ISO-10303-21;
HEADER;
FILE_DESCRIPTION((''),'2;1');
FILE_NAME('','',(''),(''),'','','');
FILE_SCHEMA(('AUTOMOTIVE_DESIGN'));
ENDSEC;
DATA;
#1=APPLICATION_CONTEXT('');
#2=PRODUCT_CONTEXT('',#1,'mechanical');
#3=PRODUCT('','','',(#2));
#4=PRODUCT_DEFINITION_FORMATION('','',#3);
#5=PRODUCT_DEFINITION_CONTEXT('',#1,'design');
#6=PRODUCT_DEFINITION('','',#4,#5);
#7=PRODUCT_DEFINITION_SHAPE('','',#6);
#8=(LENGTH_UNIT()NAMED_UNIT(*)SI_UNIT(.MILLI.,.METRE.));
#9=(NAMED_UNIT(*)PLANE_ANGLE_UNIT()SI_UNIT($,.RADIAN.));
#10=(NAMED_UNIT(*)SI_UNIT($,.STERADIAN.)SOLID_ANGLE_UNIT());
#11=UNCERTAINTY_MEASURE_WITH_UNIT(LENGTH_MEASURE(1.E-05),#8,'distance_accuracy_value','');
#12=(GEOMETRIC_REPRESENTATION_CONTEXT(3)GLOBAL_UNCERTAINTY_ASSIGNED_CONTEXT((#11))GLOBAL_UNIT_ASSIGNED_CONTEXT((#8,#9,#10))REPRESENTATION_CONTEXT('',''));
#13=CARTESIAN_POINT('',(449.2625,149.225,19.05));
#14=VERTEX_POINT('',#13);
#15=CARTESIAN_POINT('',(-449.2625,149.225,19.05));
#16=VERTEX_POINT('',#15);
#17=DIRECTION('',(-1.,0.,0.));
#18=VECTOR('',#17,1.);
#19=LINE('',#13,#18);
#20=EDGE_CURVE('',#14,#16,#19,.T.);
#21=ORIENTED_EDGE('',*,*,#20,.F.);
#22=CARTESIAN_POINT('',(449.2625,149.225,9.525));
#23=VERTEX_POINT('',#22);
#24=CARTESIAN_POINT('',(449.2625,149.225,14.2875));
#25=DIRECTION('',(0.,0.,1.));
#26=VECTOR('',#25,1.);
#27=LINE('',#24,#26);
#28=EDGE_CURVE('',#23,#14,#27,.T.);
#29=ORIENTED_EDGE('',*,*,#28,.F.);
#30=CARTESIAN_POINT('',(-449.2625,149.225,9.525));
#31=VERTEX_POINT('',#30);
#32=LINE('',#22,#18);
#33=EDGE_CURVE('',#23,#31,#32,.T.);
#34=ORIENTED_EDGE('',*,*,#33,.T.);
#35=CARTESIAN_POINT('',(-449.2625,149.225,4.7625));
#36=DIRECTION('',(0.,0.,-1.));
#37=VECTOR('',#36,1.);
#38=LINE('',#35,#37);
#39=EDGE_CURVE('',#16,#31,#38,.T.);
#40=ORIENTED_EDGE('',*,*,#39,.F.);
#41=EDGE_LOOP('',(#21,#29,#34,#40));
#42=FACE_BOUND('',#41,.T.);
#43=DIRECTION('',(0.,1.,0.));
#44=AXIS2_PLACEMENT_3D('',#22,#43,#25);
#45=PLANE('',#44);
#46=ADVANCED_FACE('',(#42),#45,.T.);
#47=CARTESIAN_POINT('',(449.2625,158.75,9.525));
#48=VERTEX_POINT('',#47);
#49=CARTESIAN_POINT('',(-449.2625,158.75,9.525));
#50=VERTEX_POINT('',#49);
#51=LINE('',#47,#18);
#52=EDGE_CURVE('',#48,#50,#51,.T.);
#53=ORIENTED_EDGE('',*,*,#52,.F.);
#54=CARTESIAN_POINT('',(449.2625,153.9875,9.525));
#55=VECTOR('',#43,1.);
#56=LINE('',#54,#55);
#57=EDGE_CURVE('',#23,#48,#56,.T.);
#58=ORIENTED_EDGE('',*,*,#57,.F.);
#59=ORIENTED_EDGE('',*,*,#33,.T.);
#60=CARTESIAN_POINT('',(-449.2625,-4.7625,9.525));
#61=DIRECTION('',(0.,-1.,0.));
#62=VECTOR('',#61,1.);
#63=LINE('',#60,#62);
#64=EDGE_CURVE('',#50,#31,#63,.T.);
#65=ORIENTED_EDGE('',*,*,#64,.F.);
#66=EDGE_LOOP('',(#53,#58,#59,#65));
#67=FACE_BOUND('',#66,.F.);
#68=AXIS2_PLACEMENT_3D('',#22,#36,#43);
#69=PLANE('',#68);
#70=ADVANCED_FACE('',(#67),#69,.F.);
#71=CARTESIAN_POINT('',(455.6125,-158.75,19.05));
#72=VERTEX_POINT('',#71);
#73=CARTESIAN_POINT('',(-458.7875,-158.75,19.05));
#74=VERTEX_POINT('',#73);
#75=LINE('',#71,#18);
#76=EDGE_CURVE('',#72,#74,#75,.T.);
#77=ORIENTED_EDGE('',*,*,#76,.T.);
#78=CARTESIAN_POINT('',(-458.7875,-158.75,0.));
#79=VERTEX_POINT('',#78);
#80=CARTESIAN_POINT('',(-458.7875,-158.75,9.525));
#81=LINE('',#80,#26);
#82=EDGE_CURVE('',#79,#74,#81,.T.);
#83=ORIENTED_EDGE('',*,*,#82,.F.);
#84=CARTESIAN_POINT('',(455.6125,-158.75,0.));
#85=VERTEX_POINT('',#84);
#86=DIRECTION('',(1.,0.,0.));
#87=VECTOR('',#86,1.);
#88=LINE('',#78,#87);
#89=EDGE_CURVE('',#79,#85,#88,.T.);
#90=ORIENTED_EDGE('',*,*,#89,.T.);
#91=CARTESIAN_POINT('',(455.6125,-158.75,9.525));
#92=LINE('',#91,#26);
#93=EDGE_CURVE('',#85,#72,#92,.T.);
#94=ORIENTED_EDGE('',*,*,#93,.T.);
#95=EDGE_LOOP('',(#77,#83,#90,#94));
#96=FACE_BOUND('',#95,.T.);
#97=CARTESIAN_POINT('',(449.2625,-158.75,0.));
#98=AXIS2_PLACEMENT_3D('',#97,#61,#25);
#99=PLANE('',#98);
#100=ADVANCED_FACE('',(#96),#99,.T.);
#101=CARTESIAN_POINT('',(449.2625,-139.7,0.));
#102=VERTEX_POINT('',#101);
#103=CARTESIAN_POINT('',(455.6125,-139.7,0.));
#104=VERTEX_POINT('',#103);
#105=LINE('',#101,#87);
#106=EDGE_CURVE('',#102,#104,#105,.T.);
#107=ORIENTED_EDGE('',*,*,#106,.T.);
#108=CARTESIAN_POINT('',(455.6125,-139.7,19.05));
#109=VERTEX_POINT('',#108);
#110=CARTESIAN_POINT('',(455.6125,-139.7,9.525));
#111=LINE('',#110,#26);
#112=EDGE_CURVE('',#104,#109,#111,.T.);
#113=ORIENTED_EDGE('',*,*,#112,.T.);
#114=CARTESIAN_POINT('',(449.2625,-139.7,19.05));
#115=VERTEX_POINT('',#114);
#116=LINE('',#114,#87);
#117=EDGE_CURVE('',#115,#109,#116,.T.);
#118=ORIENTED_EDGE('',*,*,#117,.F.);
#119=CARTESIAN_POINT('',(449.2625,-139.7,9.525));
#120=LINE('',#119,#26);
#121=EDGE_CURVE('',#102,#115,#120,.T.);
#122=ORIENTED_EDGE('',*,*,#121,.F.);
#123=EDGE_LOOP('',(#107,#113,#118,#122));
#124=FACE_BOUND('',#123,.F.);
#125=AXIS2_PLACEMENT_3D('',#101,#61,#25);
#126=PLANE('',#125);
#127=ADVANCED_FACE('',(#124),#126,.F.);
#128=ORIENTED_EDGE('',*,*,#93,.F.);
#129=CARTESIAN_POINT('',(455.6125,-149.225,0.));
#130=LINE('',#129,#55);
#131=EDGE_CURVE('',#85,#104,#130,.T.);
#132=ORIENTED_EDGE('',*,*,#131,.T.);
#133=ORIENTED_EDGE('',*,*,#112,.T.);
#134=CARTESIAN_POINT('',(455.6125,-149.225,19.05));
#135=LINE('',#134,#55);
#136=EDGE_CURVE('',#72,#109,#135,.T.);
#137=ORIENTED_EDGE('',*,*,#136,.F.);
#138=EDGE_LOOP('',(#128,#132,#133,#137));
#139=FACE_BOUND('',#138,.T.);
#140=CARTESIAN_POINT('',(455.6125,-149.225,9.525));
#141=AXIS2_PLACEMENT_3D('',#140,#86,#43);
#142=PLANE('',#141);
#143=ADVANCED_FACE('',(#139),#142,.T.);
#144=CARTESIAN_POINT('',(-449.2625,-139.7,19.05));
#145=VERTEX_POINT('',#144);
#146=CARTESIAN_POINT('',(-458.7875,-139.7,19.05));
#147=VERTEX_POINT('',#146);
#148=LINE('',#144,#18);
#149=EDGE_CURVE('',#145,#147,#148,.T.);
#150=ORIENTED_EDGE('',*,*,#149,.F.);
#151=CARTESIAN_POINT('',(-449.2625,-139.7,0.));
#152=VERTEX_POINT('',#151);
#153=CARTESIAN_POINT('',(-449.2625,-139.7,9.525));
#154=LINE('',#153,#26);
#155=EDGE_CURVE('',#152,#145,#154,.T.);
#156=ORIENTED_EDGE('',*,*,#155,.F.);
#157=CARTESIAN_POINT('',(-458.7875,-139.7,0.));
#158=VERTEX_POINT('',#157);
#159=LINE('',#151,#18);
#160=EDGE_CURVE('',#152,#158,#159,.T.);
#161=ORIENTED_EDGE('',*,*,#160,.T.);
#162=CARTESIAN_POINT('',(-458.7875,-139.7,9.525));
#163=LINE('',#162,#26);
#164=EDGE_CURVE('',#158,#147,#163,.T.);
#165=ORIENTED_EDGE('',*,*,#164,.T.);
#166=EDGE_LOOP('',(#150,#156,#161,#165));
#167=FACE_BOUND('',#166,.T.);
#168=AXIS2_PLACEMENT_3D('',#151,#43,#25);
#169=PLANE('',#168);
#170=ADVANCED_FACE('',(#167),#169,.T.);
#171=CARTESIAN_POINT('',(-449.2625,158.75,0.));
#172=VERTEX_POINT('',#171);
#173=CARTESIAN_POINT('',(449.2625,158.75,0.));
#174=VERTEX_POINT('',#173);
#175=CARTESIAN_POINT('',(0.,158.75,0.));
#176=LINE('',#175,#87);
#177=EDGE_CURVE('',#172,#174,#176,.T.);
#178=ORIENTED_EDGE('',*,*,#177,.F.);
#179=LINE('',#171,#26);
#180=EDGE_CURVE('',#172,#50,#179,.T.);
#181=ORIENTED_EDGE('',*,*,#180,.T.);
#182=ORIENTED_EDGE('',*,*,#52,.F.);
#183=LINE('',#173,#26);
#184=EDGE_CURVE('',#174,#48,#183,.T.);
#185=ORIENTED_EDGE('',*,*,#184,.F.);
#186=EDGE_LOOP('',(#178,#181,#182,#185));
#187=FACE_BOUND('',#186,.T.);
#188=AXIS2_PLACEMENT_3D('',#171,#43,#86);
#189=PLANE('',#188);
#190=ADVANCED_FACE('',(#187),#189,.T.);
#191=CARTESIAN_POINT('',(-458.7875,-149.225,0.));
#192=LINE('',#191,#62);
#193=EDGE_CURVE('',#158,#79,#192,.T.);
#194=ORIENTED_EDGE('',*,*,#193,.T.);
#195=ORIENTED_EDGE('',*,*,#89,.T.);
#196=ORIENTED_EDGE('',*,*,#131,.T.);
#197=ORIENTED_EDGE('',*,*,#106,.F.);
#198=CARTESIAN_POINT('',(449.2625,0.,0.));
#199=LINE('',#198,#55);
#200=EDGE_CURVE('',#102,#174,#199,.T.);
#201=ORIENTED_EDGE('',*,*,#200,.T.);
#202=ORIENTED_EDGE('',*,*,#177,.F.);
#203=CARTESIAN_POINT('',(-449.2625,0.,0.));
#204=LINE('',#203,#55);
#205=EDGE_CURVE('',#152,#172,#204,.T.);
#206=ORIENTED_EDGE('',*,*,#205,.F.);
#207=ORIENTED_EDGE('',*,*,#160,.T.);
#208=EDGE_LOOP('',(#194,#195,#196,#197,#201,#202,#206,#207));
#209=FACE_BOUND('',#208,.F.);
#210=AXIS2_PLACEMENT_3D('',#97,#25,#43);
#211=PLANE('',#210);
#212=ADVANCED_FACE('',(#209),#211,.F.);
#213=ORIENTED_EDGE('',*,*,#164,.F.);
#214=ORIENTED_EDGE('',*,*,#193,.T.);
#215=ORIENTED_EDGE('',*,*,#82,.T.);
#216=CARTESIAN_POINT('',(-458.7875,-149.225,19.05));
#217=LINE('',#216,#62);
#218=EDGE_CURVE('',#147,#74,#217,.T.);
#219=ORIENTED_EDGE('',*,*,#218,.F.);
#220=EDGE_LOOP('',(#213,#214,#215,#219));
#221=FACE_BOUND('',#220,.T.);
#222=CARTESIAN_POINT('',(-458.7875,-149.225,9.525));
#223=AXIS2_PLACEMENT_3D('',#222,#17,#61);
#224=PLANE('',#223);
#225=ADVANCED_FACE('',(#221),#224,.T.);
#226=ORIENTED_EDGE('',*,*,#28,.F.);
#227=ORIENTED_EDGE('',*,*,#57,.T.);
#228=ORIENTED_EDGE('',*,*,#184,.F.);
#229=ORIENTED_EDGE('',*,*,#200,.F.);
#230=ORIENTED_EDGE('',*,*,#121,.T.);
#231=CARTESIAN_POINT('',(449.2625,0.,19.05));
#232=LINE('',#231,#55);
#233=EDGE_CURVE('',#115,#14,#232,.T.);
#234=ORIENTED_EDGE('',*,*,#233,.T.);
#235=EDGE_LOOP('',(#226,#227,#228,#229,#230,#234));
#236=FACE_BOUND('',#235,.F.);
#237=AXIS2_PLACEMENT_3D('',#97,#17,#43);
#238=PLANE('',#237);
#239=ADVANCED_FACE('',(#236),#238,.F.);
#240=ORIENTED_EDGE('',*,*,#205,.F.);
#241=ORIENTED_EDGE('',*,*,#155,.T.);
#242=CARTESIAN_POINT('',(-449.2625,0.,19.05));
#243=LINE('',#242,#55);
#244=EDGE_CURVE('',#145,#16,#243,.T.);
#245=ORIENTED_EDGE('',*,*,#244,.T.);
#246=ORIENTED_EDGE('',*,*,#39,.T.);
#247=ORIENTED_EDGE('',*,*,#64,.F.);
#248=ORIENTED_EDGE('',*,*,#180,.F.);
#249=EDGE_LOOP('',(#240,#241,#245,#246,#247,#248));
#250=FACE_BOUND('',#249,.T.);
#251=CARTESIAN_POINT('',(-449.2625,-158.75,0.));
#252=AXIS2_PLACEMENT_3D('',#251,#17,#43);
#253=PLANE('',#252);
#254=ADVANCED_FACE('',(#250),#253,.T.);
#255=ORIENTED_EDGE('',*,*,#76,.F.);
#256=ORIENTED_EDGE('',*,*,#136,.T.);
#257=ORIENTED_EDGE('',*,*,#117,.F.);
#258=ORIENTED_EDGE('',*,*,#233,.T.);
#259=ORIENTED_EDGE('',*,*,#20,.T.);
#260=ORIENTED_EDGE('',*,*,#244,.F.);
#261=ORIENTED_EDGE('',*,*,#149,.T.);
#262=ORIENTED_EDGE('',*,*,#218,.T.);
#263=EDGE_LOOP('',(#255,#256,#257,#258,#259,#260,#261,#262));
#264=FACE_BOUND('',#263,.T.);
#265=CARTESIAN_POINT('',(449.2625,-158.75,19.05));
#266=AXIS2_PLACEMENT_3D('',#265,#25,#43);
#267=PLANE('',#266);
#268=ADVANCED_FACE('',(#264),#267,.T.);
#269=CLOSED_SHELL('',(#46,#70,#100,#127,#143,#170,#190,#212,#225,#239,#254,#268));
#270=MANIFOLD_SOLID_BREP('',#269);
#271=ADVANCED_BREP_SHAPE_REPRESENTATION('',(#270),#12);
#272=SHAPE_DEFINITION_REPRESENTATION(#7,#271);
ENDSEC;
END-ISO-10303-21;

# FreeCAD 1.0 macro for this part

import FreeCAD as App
import Part
import Sketcher
Q = App.Units.Quantity


def add_polygon(sketch, points):
    """Adds a closed chain of lines whose ends are joined by coincident constraints."""
    first, n = sketch.GeometryCount, len(points)
    for a, b in zip(points, points[1:] + points[:1]):
        sketch.addGeometry(Part.LineSegment(App.Vector(*a, 0), App.Vector(*b, 0)), False)
    for i in range(n):
        sketch.addConstraint(Sketcher.Constraint("Coincident", first + i, 2, first + (i + 1) % n, 1))

doc = App.newDocument("Part")
body = doc.addObject("PartDesign::Body", "Body")

# Sketch on XY plane
sketch1 = body.newObject("Sketcher::SketchObject", "Sketch")
sketch1.AttachmentSupport = (doc.getObject("XY_Plane"), [""])
sketch1.MapMode = "FlatFace"
add_polygon(sketch1, [(-449, 159), (-449, -159), (449, -159), (449, 159)])  # lines 0-3
sketch1.addConstraint([
    Sketcher.Constraint("Vertical", 0),
    Sketcher.Constraint("Horizontal", 1),
    Sketcher.Constraint("Vertical", 2),
    Sketcher.Constraint("Horizontal", 3),
    Sketcher.Constraint("Symmetric", 0, 2, 2, 2, -1, 1),
    Sketcher.Constraint("DistanceY", 0, 2, 0, 1, Q("12.5 in")),
    Sketcher.Constraint("DistanceX", 1, 1, 1, 2, Q("35.375 in")),
])
pad1 = body.newObject("PartDesign::Pad", "Pad")
pad1.Profile = sketch1
pad1.Length = Q("0.75 in")

# Sketch on YZ plane
sketch2 = body.newObject("Sketcher::SketchObject", "Sketch001")
sketch2.AttachmentSupport = (doc.getObject("YZ_Plane"), [""])
sketch2.MapMode = "FlatFace"
sketch2.AttachmentOffset = App.Placement(App.Vector(0, 0, 17.6875 * 25.4), App.Rotation())
add_polygon(sketch2, [(149, 19), (149, 10), (159, 10), (159, 19)])  # lines 0-3
sketch2.addConstraint([
    Sketcher.Constraint("Vertical", 0),
    Sketcher.Constraint("Horizontal", 1),
    Sketcher.Constraint("Vertical", 2),
    Sketcher.Constraint("Horizontal", 3),
    Sketcher.Constraint("Equal", 3, 0),
    Sketcher.Constraint("DistanceX", 1, 1, 1, 2, Q("0.375 in")),
    Sketcher.Constraint("DistanceX", -1, 1, 1, 2, Q("6.25 in")),
    Sketcher.Constraint("DistanceY", -1, 1, 2, 2, Q("0.75 in")),
])
pocket1 = body.newObject("PartDesign::Pocket", "Pocket")
pocket1.Profile = sketch2
pocket1.Type = "ThroughAll"

# Sketch on YZ plane
sketch3 = body.newObject("Sketcher::SketchObject", "Sketch002")
sketch3.AttachmentSupport = (doc.getObject("YZ_Plane"), [""])
sketch3.MapMode = "FlatFace"
sketch3.AttachmentOffset = App.Placement(App.Vector(0, 0, -17.6875 * 25.4), App.Rotation())
add_polygon(sketch3, [(-140, 19), (-140, 0), (-159, 0), (-159, 19)])  # lines 0-3
sketch3.addConstraint([
    Sketcher.Constraint("Vertical", 0),
    Sketcher.Constraint("Horizontal", 1),
    Sketcher.Constraint("Vertical", 2),
    Sketcher.Constraint("Horizontal", 3),
    Sketcher.Constraint("PointOnObject", 0, 2, -1),
    Sketcher.Constraint("Equal", 3, 0),
    Sketcher.Constraint("DistanceX", 1, 2, 1, 1, Q("0.75 in")),
    Sketcher.Constraint("DistanceX", 0, 2, -1, 1, Q("5.5 in")),
])
pad2 = body.newObject("PartDesign::Pad", "Pad001")
pad2.Profile = sketch3
pad2.Length = Q("0.375 in")
pad2.Reversed = True

# Sketch on YZ plane
sketch4 = body.newObject("Sketcher::SketchObject", "Sketch003")
sketch4.AttachmentSupport = (doc.getObject("YZ_Plane"), [""])
sketch4.MapMode = "FlatFace"
sketch4.AttachmentOffset = App.Placement(App.Vector(0, 0, 17.6875 * 25.4), App.Rotation())
add_polygon(sketch4, [(-159, 19), (-159, 0), (-140, 0), (-140, 19)])  # lines 0-3
sketch4.addConstraint([
    Sketcher.Constraint("Vertical", 0),
    Sketcher.Constraint("Horizontal", 1),
    Sketcher.Constraint("Vertical", 2),
    Sketcher.Constraint("Horizontal", 3),
    Sketcher.Constraint("PointOnObject", 0, 2, -1),
    Sketcher.Constraint("Equal", 3, 0),
    Sketcher.Constraint("DistanceX", 1, 1, 1, 2, Q("0.75 in")),
    Sketcher.Constraint("DistanceX", 1, 2, -1, 1, Q("5.5 in")),
])
pad3 = body.newObject("PartDesign::Pad", "Pad002")
pad3.Profile = sketch4
pad3.Length = Q("0.25 in")

doc.recompute()
